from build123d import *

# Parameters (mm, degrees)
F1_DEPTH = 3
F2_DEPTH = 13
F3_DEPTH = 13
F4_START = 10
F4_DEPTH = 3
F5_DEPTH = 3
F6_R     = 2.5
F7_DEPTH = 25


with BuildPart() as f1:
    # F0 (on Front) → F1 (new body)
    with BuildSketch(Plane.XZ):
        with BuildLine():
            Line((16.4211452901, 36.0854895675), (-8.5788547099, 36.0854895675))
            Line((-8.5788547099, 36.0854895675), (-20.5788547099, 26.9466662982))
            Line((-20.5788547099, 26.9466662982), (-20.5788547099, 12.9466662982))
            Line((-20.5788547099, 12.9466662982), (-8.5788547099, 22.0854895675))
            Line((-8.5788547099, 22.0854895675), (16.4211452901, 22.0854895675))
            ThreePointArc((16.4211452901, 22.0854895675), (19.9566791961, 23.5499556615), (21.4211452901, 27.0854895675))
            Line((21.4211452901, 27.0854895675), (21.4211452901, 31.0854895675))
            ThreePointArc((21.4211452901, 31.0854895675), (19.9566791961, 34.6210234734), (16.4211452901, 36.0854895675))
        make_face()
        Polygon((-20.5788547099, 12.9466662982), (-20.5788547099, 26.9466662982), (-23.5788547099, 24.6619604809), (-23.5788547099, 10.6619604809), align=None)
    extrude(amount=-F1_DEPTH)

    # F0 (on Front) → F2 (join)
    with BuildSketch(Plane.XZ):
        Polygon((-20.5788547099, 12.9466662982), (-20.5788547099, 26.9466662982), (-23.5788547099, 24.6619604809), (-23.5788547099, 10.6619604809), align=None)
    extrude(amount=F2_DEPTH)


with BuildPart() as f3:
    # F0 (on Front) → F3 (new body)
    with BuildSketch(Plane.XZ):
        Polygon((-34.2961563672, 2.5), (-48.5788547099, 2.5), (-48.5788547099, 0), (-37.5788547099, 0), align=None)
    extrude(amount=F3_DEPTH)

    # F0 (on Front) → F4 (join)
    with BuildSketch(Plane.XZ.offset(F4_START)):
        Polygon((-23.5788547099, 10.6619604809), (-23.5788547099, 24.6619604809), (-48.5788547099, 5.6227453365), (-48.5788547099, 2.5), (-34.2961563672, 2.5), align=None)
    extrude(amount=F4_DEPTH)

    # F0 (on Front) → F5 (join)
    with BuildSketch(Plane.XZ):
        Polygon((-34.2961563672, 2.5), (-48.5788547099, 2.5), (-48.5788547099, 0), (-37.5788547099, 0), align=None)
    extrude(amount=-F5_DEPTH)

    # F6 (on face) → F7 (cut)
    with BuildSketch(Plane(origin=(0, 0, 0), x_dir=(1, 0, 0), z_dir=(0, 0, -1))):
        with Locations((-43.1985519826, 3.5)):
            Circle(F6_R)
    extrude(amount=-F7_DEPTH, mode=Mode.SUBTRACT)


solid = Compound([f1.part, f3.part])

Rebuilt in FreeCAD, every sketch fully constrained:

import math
import FreeCAD as App
import Part
import Sketcher

V = App.Vector

doc = App.newDocument("Part")
body = doc.addObject("PartDesign::Body", "Body")

# Sketch on XZ plane
sketch1 = doc.addObject("Sketcher::SketchObject", "Sketch")
body.addObject(sketch1)
sketch1.AttachmentSupport = (doc.XZ_Plane, [""])
sketch1.MapMode = "FlatFace"
sketch1.addGeometry(Part.LineSegment(V(16.4, 36.1, 0), V(-8.6, 36.1, 0)), False)
sketch1.addGeometry(Part.LineSegment(V(-8.6, 36.1, 0), V(-20.6, 26.9, 0)), False)
sketch1.addGeometry(Part.LineSegment(V(-20.6, 26.9, 0), V(-23.6, 24.7, 0)), False)
sketch1.addGeometry(Part.LineSegment(V(-23.6, 24.7, 0), V(-23.6, 10.7, 0)), False)
sketch1.addGeometry(Part.LineSegment(V(-23.6, 10.7, 0), V(-20.6, 12.9, 0)), False)
sketch1.addGeometry(Part.LineSegment(V(-20.6, 12.9, 0), V(-8.6, 22.1, 0)), False)
sketch1.addGeometry(Part.LineSegment(V(-8.6, 22.1, 0), V(16.4, 22.1, 0)), False)
sketch1.addGeometry(Part.ArcOfCircle(Part.Circle(V(16.4, 27.1, 0), V(0, 0, 1), 5), math.radians(-90), math.radians(0)), False)
sketch1.addGeometry(Part.LineSegment(V(21.4, 27.1, 0), V(21.4, 31.1, 0)), False)
sketch1.addGeometry(Part.ArcOfCircle(Part.Circle(V(16.4, 31.1, 0), V(0, 0, 1), 5), math.radians(0), math.radians(90)), False)
sketch1.addConstraint(Sketcher.Constraint("Coincident", 0, 2, 1, 1))
sketch1.addConstraint(Sketcher.Constraint("Coincident", 1, 2, 2, 1))
sketch1.addConstraint(Sketcher.Constraint("Coincident", 2, 2, 3, 1))
sketch1.addConstraint(Sketcher.Constraint("Coincident", 3, 2, 4, 1))
sketch1.addConstraint(Sketcher.Constraint("Coincident", 4, 2, 5, 1))
sketch1.addConstraint(Sketcher.Constraint("Coincident", 5, 2, 6, 1))
sketch1.addConstraint(Sketcher.Constraint("Tangent", 6, 2, 7, 1))
sketch1.addConstraint(Sketcher.Constraint("Tangent", 7, 2, 8, 1))
sketch1.addConstraint(Sketcher.Constraint("Tangent", 8, 2, 9, 1))
sketch1.addConstraint(Sketcher.Constraint("Tangent", 9, 2, 0, 1))
sketch1.addConstraint(Sketcher.Constraint("Horizontal", 0))
sketch1.addConstraint(Sketcher.Constraint("Vertical", 3))
sketch1.addConstraint(Sketcher.Constraint("Horizontal", 6))
sketch1.addConstraint(Sketcher.Constraint("Vertical", 8))
sketch1.addConstraint(Sketcher.Constraint("Equal", 7, 9))
sketch1.addConstraint(Sketcher.Constraint("Parallel", 1, 2))
sketch1.addConstraint(Sketcher.Constraint("Parallel", 2, 4))
sketch1.addConstraint(Sketcher.Constraint("Parallel", 4, 5))
sketch1.addConstraint(Sketcher.Constraint("Vertical", 1, 2, 4, 2))
sketch1.addConstraint(Sketcher.Constraint("Vertical", 0, 2, 5, 2))
sketch1.addConstraint(Sketcher.Constraint("Radius", 7, 5.0))
sketch1.addConstraint(Sketcher.Constraint("DistanceX", 0, 2, 0, 1, 25.0))
sketch1.addConstraint(Sketcher.Constraint("DistanceY", 3, 2, 3, 1, 14.0))
sketch1.addConstraint(Sketcher.Constraint("DistanceX", 1, 2, 0, 2, 12.0))
sketch1.addConstraint(Sketcher.Constraint("DistanceX", 2, 2, 1, 2, 3.0))
sketch1.addConstraint(Sketcher.Constraint("DistanceY", -1, 1, 7, 3, 27.08549))
sketch1.addConstraint(Sketcher.Constraint("DistanceY", -1, 1, 2, 2, 24.66196))
sketch1.addConstraint(Sketcher.Constraint("DistanceX", -1, 1, 7, 3, 16.421145))
pad1 = doc.addObject("PartDesign::Pad", "Pad")
body.addObject(pad1)
pad1.Profile = sketch1
pad1.Length = 3
pad1.Reversed = True

# Sketch on XZ plane
sketch2 = doc.addObject("Sketcher::SketchObject", "Sketch001")
body.addObject(sketch2)
sketch2.AttachmentSupport = (doc.XZ_Plane, [""])
sketch2.MapMode = "FlatFace"
sketch2.addGeometry(Part.LineSegment(V(-20.6, 12.9, 0), V(-20.6, 26.9, 0)), False)
sketch2.addGeometry(Part.LineSegment(V(-20.6, 26.9, 0), V(-23.6, 24.7, 0)), False)
sketch2.addGeometry(Part.LineSegment(V(-23.6, 24.7, 0), V(-23.6, 10.7, 0)), False)
sketch2.addGeometry(Part.LineSegment(V(-23.6, 10.7, 0), V(-20.6, 12.9, 0)), False)
sketch2.addConstraint(Sketcher.Constraint("Coincident", 0, 2, 1, 1))
sketch2.addConstraint(Sketcher.Constraint("Coincident", 1, 2, 2, 1))
sketch2.addConstraint(Sketcher.Constraint("Coincident", 2, 2, 3, 1))
sketch2.addConstraint(Sketcher.Constraint("Coincident", 3, 2, 0, 1))
sketch2.addConstraint(Sketcher.Constraint("Vertical", 0))
sketch2.addConstraint(Sketcher.Constraint("Vertical", 2))
sketch2.addConstraint(Sketcher.Constraint("Parallel", 1, 3))
sketch2.addConstraint(Sketcher.Constraint("DistanceY", 0, 1, 0, 2, 14.0))
sketch2.addConstraint(Sketcher.Constraint("DistanceX", 1, 2, 0, 2, 3.0))
sketch2.addConstraint(Sketcher.Constraint("DistanceY", -1, 1, 1, 2, 24.66196))
sketch2.addConstraint(Sketcher.Constraint("Distance", 1, 3.770926))
sketch2.addConstraint(Sketcher.Constraint("DistanceX", 0, 2, -1, 1, 20.578855))
pad2 = doc.addObject("PartDesign::Pad", "Pad001")
body.addObject(pad2)
pad2.Profile = sketch2
pad2.Length = 13
body2 = doc.addObject("PartDesign::Body", "Body001")

# Sketch on XZ plane
sketch3 = doc.addObject("Sketcher::SketchObject", "Sketch002")
body2.addObject(sketch3)
sketch3.AttachmentSupport = (doc.getObject("XZ_Plane001"), [""])
sketch3.MapMode = "FlatFace"
sketch3.addGeometry(Part.LineSegment(V(-34.3, 2.5, 0), V(-48.6, 2.5, 0)), False)
sketch3.addGeometry(Part.LineSegment(V(-48.6, 2.5, 0), V(-48.6, 0, 0)), False)
sketch3.addGeometry(Part.LineSegment(V(-48.6, 0, 0), V(-37.6, 0, 0)), False)
sketch3.addGeometry(Part.LineSegment(V(-37.6, 0, 0), V(-34.3, 2.5, 0)), False)
sketch3.addConstraint(Sketcher.Constraint("Coincident", 0, 2, 1, 1))
sketch3.addConstraint(Sketcher.Constraint("Coincident", 1, 2, 2, 1))
sketch3.addConstraint(Sketcher.Constraint("Coincident", 2, 2, 3, 1))
sketch3.addConstraint(Sketcher.Constraint("Coincident", 3, 2, 0, 1))
sketch3.addConstraint(Sketcher.Constraint("Horizontal", 0))
sketch3.addConstraint(Sketcher.Constraint("Vertical", 1))
sketch3.addConstraint(Sketcher.Constraint("Horizontal", 2))
sketch3.addConstraint(Sketcher.Constraint("PointOnObject", 1, 2, -1))
sketch3.addConstraint(Sketcher.Constraint("DistanceX", 2, 1, 2, 2, 11.0))
sketch3.addConstraint(Sketcher.Constraint("DistanceY", 1, 2, 1, 1, 2.5))
sketch3.addConstraint(Sketcher.Constraint("DistanceX", 0, 2, 0, 1, 14.282698))
sketch3.addConstraint(Sketcher.Constraint("DistanceX", 0, 2, -1, 1, 48.578855))
pad3 = doc.addObject("PartDesign::Pad", "Pad002")
body2.addObject(pad3)
pad3.Profile = sketch3
pad3.Length = 13

# Sketch on XZ plane
sketch4 = doc.addObject("Sketcher::SketchObject", "Sketch003")
body2.addObject(sketch4)
sketch4.AttachmentSupport = (doc.getObject("XZ_Plane001"), [""])
sketch4.MapMode = "FlatFace"
sketch4.AttachmentOffset = App.Placement(V(0, 0, 10), App.Rotation())
sketch4.addGeometry(Part.LineSegment(V(-23.6, 10.7, 0), V(-23.6, 24.7, 0)), False)
sketch4.addGeometry(Part.LineSegment(V(-23.6, 24.7, 0), V(-48.6, 5.6, 0)), False)
sketch4.addGeometry(Part.LineSegment(V(-48.6, 5.6, 0), V(-48.6, 2.5, 0)), False)
sketch4.addGeometry(Part.LineSegment(V(-48.6, 2.5, 0), V(-34.3, 2.5, 0)), False)
sketch4.addGeometry(Part.LineSegment(V(-34.3, 2.5, 0), V(-23.6, 10.7, 0)), False)
sketch4.addConstraint(Sketcher.Constraint("Coincident", 0, 2, 1, 1))
sketch4.addConstraint(Sketcher.Constraint("Coincident", 1, 2, 2, 1))
sketch4.addConstraint(Sketcher.Constraint("Coincident", 2, 2, 3, 1))
sketch4.addConstraint(Sketcher.Constraint("Coincident", 3, 2, 4, 1))
sketch4.addConstraint(Sketcher.Constraint("Coincident", 4, 2, 0, 1))
sketch4.addConstraint(Sketcher.Constraint("Vertical", 0))
sketch4.addConstraint(Sketcher.Constraint("Vertical", 2))
sketch4.addConstraint(Sketcher.Constraint("Horizontal", 3))
sketch4.addConstraint(Sketcher.Constraint("Parallel", 1, 4))
sketch4.addConstraint(Sketcher.Constraint("DistanceY", 0, 1, 0, 2, 14.0))
sketch4.addConstraint(Sketcher.Constraint("DistanceX", 1, 2, 0, 2, 25.0))
sketch4.addConstraint(Sketcher.Constraint("DistanceY", -1, 1, 2, 2, 2.5))
sketch4.addConstraint(Sketcher.Constraint("DistanceX", 3, 1, 3, 2, 14.282698))
sketch4.addConstraint(Sketcher.Constraint("Distance", 1, 31.424381))
sketch4.addConstraint(Sketcher.Constraint("DistanceX", 0, 2, -1, 1, 23.578855))
pad4 = doc.addObject("PartDesign::Pad", "Pad003")
body2.addObject(pad4)
pad4.Profile = sketch4
pad4.Length = 3

# Sketch on XZ plane
sketch5 = doc.addObject("Sketcher::SketchObject", "Sketch004")
body2.addObject(sketch5)
sketch5.AttachmentSupport = (doc.getObject("XZ_Plane001"), [""])
sketch5.MapMode = "FlatFace"
sketch5.addGeometry(Part.LineSegment(V(-34.3, 2.5, 0), V(-48.6, 2.5, 0)), False)
sketch5.addGeometry(Part.LineSegment(V(-48.6, 2.5, 0), V(-48.6, 0, 0)), False)
sketch5.addGeometry(Part.LineSegment(V(-48.6, 0, 0), V(-37.6, 0, 0)), False)
sketch5.addGeometry(Part.LineSegment(V(-37.6, 0, 0), V(-34.3, 2.5, 0)), False)
sketch5.addConstraint(Sketcher.Constraint("Coincident", 0, 2, 1, 1))
sketch5.addConstraint(Sketcher.Constraint("Coincident", 1, 2, 2, 1))
sketch5.addConstraint(Sketcher.Constraint("Coincident", 2, 2, 3, 1))
sketch5.addConstraint(Sketcher.Constraint("Coincident", 3, 2, 0, 1))
sketch5.addConstraint(Sketcher.Constraint("Horizontal", 0))
sketch5.addConstraint(Sketcher.Constraint("Vertical", 1))
sketch5.addConstraint(Sketcher.Constraint("Horizontal", 2))
sketch5.addConstraint(Sketcher.Constraint("PointOnObject", 1, 2, -1))
sketch5.addConstraint(Sketcher.Constraint("DistanceX", 2, 1, 2, 2, 11.0))
sketch5.addConstraint(Sketcher.Constraint("DistanceY", 1, 2, 1, 1, 2.5))
sketch5.addConstraint(Sketcher.Constraint("DistanceX", 0, 2, 0, 1, 14.282698))
sketch5.addConstraint(Sketcher.Constraint("DistanceX", 0, 2, -1, 1, 48.578855))
pad5 = doc.addObject("PartDesign::Pad", "Pad004")
body2.addObject(pad5)
pad5.Profile = sketch5
pad5.Length = 3
pad5.Reversed = True

# Sketch on XY plane
sketch6 = doc.addObject("Sketcher::SketchObject", "Sketch005")
body2.addObject(sketch6)
sketch6.AttachmentSupport = (doc.getObject("XY_Plane001"), [""])
sketch6.MapMode = "FlatFace"
sketch6.addGeometry(Part.Circle(V(-43.2, -3.5, 0), V(0, 0, 1), 2.5), False)
sketch6.addConstraint(Sketcher.Constraint("Diameter", 0, 5.0))
sketch6.addConstraint(Sketcher.Constraint("DistanceY", 0, 3, -1, 1, 3.5))
sketch6.addConstraint(Sketcher.Constraint("DistanceX", 0, 3, -1, 1, 43.198552))
pocket1 = doc.addObject("PartDesign::Pocket", "Pocket")
body2.addObject(pocket1)
pocket1.Profile = sketch6
pocket1.Length = 25
pocket1.Reversed = True

doc.recompute()
